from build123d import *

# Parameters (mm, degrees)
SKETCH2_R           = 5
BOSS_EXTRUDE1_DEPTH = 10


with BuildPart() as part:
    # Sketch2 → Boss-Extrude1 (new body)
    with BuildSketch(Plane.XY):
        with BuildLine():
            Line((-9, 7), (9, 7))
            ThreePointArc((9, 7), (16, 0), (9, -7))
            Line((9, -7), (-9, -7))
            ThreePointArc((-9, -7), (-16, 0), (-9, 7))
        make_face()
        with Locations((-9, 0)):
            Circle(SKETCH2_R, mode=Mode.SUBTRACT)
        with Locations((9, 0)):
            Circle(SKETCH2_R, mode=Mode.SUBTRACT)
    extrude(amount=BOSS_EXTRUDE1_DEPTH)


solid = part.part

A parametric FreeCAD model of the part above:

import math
import FreeCAD as App
import Part
import Sketcher
from FreeCAD import Vector
Q = App.Units.Quantity

doc = App.newDocument("Part")
body = doc.addObject("PartDesign::Body", "Body")

# Sketch on XY plane
sketch1 = body.newObject("Sketcher::SketchObject", "Sketch")
sketch1.AttachmentSupport = (doc.getObject("XY_Plane"), [""])
sketch1.MapMode = "FlatFace"
sketch1.addGeometry(Part.LineSegment(Vector(9, 7, 0), Vector(-9, 7, 0)), False)
sketch1.addGeometry(Part.ArcOfCircle(Part.Circle(Vector(-9, 0, 0), Vector(0, 0, 1), 7), math.radians(90), math.radians(270)), False)
sketch1.addGeometry(Part.LineSegment(Vector(-9, -7, 0), Vector(9, -7, 0)), False)
sketch1.addGeometry(Part.ArcOfCircle(Part.Circle(Vector(9, 0, 0), Vector(0, 0, 1), 7), math.radians(-90), math.radians(90)), False)
sketch1.addGeometry(Part.Circle(Vector(9, 0, 0), Vector(0, 0, 1), 5), False)
sketch1.addGeometry(Part.Circle(Vector(-9, 0, 0), Vector(0, 0, 1), 5), False)
sketch1.addConstraint(Sketcher.Constraint("Tangent", 0, 2, 1, 1))
sketch1.addConstraint(Sketcher.Constraint("Tangent", 1, 2, 2, 1))
sketch1.addConstraint(Sketcher.Constraint("Tangent", 2, 2, 3, 1))
sketch1.addConstraint(Sketcher.Constraint("Tangent", 3, 2, 0, 1))
sketch1.addConstraint(Sketcher.Constraint("Horizontal", 0))
sketch1.addConstraint(Sketcher.Constraint("Horizontal", 2))
sketch1.addConstraint(Sketcher.Constraint("Coincident", 4, 3, 3, 3))
sketch1.addConstraint(Sketcher.Constraint("Coincident", 5, 3, 1, 3))
sketch1.addConstraint(Sketcher.Constraint("Equal", 4, 5))
sketch1.addConstraint(Sketcher.Constraint("Symmetric", 1, 3, 3, 3, -1, 1))
sketch1.addConstraint(Sketcher.Constraint("Diameter", 4, Q("10 mm")))
sketch1.addConstraint(Sketcher.Constraint("Radius", 1, Q("7 mm")))
sketch1.addConstraint(Sketcher.Constraint("DistanceX", 0, 2, 0, 1, Q("18 mm")))
pad1 = body.newObject("PartDesign::Pad", "Pad")
pad1.Profile = sketch1
pad1.Length = 10

doc.recompute()
